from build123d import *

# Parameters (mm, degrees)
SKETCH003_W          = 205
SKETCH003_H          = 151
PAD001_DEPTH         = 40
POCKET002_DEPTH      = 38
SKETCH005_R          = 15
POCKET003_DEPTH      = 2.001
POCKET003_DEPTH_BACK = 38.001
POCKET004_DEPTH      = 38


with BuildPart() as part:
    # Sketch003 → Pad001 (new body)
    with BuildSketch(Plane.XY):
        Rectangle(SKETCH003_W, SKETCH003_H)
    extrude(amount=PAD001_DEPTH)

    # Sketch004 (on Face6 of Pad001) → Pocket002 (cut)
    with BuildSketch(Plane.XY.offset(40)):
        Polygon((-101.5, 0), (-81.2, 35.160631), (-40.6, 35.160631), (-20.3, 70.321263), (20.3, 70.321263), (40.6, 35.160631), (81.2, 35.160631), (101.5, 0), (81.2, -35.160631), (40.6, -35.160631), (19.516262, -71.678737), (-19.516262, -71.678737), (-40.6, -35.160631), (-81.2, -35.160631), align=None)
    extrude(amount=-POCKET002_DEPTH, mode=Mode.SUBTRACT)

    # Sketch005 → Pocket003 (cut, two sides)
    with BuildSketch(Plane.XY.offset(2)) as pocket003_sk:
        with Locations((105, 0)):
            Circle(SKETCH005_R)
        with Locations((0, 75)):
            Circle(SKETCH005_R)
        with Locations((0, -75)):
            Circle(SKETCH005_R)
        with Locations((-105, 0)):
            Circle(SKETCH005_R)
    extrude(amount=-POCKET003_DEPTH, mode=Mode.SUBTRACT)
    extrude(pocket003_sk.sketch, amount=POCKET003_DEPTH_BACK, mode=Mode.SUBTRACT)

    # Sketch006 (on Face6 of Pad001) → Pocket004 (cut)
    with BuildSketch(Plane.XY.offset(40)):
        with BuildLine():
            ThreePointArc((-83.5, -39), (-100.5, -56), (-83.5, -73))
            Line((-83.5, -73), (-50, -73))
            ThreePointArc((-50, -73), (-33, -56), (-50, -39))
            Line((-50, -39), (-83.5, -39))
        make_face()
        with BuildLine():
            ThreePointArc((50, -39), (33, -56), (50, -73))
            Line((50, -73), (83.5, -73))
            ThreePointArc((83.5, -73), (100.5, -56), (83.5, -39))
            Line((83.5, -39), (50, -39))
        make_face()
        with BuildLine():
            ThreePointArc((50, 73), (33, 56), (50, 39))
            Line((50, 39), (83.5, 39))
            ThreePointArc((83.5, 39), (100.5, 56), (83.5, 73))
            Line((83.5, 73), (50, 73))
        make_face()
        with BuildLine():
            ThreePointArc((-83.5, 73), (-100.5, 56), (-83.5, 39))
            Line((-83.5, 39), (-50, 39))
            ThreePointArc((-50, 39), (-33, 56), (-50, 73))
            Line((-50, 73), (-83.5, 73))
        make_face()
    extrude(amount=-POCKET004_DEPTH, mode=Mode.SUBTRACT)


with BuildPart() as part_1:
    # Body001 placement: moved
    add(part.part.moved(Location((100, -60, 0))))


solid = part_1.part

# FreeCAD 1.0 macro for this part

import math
import FreeCAD as App
import Part
import Sketcher

V = App.Vector
Q = App.Units.Quantity

doc = App.newDocument("Part")
params = doc.addObject("Spreadsheet::Sheet", "Params")
for row, (alias, value) in enumerate([
    ("sketch1_width", "205 mm"),
    ("sketch1_height", "151 mm"),
    ("pad1_length", "40 mm"),
    ("sketch2_width", "40.6 mm"),
    ("sketch2_length", "40.6 mm"),
    ("pocket1_length", "38 mm"),
    ("sketch3_diameter", "30 mm"),
    ("sketch4_radius", "17 mm"),
    ("sketch4_width", "33.5 mm"),
    ("pocket3_length", "38 mm"),
], start=1):
    params.set(f"A{row}", alias)
    params.set(f"B{row}", "=" + value)
    params.setAlias(f"B{row}", alias)

body = doc.addObject("PartDesign::Body", "Body")

# Sketch on XY plane
sketch1 = body.newObject("Sketcher::SketchObject", "Sketch")
sketch1.AttachmentSupport = (doc.getObject("XY_Plane"), [""])
sketch1.MapMode = "FlatFace"
sketch1.addGeometry([
    Part.LineSegment(V(-102, 76, 0), V(-102, -76, 0)),
    Part.LineSegment(V(-102, -76, 0), V(102, -76, 0)),
    Part.LineSegment(V(102, -76, 0), V(102, 76, 0)),
    Part.LineSegment(V(102, 76, 0), V(-102, 76, 0)),
], False)
sketch1.addConstraint([
    Sketcher.Constraint("Coincident", 0, 2, 1, 1),
    Sketcher.Constraint("Coincident", 1, 2, 2, 1),
    Sketcher.Constraint("Coincident", 2, 2, 3, 1),
    Sketcher.Constraint("Coincident", 3, 2, 0, 1),
    Sketcher.Constraint("Vertical", 0),
    Sketcher.Constraint("Horizontal", 1),
    Sketcher.Constraint("Vertical", 2),
    Sketcher.Constraint("Horizontal", 3),
    Sketcher.Constraint("Symmetric", 0, 2, 2, 2, -1, 1),
    Sketcher.Constraint("DistanceX", 1, 1, 1, 2, Q("205 mm")),
    Sketcher.Constraint("DistanceY", 0, 2, 0, 1, Q("151 mm")),
])
sketch1.setExpression("Constraints[9]", "Params.sketch1_width")
sketch1.setExpression("Constraints[10]", "Params.sketch1_height")
pad1 = body.newObject("PartDesign::Pad", "Pad")
pad1.Profile = sketch1
pad1.setExpression("Length", "Params.pad1_length")

# Sketch on XY plane
sketch2 = body.newObject("Sketcher::SketchObject", "Sketch001")
sketch2.AttachmentSupport = (doc.getObject("XY_Plane"), [""])
sketch2.MapMode = "FlatFace"
sketch2.AttachmentOffset = App.Placement(V(0, 0, 40), App.Rotation())
sketch2.addGeometry([
    Part.LineSegment(V(-81, 35, 0), V(-102, 0, 0)),  # 0
    Part.LineSegment(V(-102, 0, 0), V(-81, -35, 0)),  # 1
    Part.LineSegment(V(-81, -35, 0), V(-41, -35, 0)),  # 2
    Part.LineSegment(V(-41, -35, 0), V(-20, -72, 0)),  # 3
    Part.LineSegment(V(-20, -72, 0), V(20, -72, 0)),  # 4
    Part.LineSegment(V(20, -72, 0), V(41, -35, 0)),  # 5
    Part.LineSegment(V(41, -35, 0), V(81, -35, 0)),  # 6
    Part.LineSegment(V(81, -35, 0), V(102, 0, 0)),  # 7
    Part.LineSegment(V(102, 0, 0), V(81, 35, 0)),  # 8
    Part.LineSegment(V(81, 35, 0), V(41, 35, 0)),  # 9
    Part.LineSegment(V(41, 35, 0), V(20, 70, 0)),  # 10
    Part.LineSegment(V(20, 70, 0), V(-20, 70, 0)),  # 11
    Part.LineSegment(V(-20, 70, 0), V(-41, 35, 0)),  # 12
    Part.LineSegment(V(-41, 35, 0), V(-81, 35, 0)),  # 13
], False)
sketch2.addConstraint([
    Sketcher.Constraint("Coincident", 0, 2, 1, 1),
    Sketcher.Constraint("Coincident", 1, 2, 2, 1),
    Sketcher.Constraint("Coincident", 2, 2, 3, 1),
    Sketcher.Constraint("Coincident", 3, 2, 4, 1),
    Sketcher.Constraint("Coincident", 4, 2, 5, 1),
    Sketcher.Constraint("Coincident", 5, 2, 6, 1),
    Sketcher.Constraint("Coincident", 6, 2, 7, 1),
    Sketcher.Constraint("Coincident", 7, 2, 8, 1),
    Sketcher.Constraint("Coincident", 8, 2, 9, 1),
    Sketcher.Constraint("Coincident", 9, 2, 10, 1),
    Sketcher.Constraint("Coincident", 10, 2, 11, 1),
    Sketcher.Constraint("Coincident", 11, 2, 12, 1),
    Sketcher.Constraint("Coincident", 12, 2, 13, 1),
    Sketcher.Constraint("Coincident", 13, 2, 0, 1),
    Sketcher.Constraint("Horizontal", 2),
    Sketcher.Constraint("Horizontal", 4),
    Sketcher.Constraint("Horizontal", 6),
    Sketcher.Constraint("Horizontal", 9),
    Sketcher.Constraint("Horizontal", 11),
    Sketcher.Constraint("Horizontal", 13),
    Sketcher.Constraint("Symmetric", 0, 2, 7, 2, -1, 1),
    Sketcher.Constraint("Symmetric", 1, 2, 8, 2, -1, 1),
    Sketcher.Constraint("Symmetric", 5, 2, 12, 2, -1, 1),
    Sketcher.Constraint("Symmetric", 2, 2, 5, 2, -2),
    Sketcher.Constraint("PointOnObject", 0, 2, -1),
    Sketcher.Constraint("Parallel", 1, 3),
    Sketcher.Constraint("Parallel", 0, 5),
    Sketcher.Constraint("Parallel", 5, 7),
    Sketcher.Constraint("Parallel", 8, 10),
    Sketcher.Constraint("Parallel", 7, 12),
    Sketcher.Constraint("Vertical", 6, 2, 8, 2),
    Sketcher.Constraint("Vertical", 5, 2, 9, 2),
    Sketcher.Constraint("Equal", 9, 11),
    Sketcher.Constraint("Equal", 8, 10),
    Sketcher.Constraint("Angle", 0, Q("-120 deg")),
    Sketcher.Constraint("DistanceX", 2, 1, 2, 2, Q("40.6 mm")),
    Sketcher.Constraint("Distance", 0, Q("40.6 mm")),
    Sketcher.Constraint("DistanceX", 4, 1, 4, 2, Q("39.032524 mm")),
])
sketch2.setExpression("Constraints[35]", "Params.sketch2_width")
sketch2.setExpression("Constraints[36]", "Params.sketch2_length")
pocket1 = body.newObject("PartDesign::Pocket", "Pocket")
pocket1.Profile = sketch2
pocket1.setExpression("Length", "Params.pocket1_length")

# Sketch on XY plane
sketch3 = body.newObject("Sketcher::SketchObject", "Sketch002")
sketch3.AttachmentSupport = (doc.getObject("XY_Plane"), [""])
sketch3.MapMode = "FlatFace"
sketch3.AttachmentOffset = App.Placement(V(0, 0, 2), App.Rotation())
sketch3.addGeometry([
    Part.Circle(V(105, 0, 0), V(0, 0, 1), 15),
    Part.Circle(V(0, 75, 0), V(0, 0, 1), 15),
    Part.Circle(V(0, -75, 0), V(0, 0, 1), 15),
    Part.Circle(V(-105, 0, 0), V(0, 0, 1), 15),
], False)
sketch3.addConstraint([
    Sketcher.Constraint("Equal", 0, 1),
    Sketcher.Constraint("Equal", 1, 2),
    Sketcher.Constraint("Equal", 2, 3),
    Sketcher.Constraint("Symmetric", 1, 3, 2, 3, -1, 1),
    Sketcher.Constraint("Symmetric", 0, 3, 3, 3, -1, 1),
    Sketcher.Constraint("PointOnObject", 0, 3, -1),
    Sketcher.Constraint("PointOnObject", 1, 3, -2),
    Sketcher.Constraint("Diameter", 0, Q("30 mm")),
    Sketcher.Constraint("DistanceX", -1, 1, 0, 3, Q("105 mm")),
    Sketcher.Constraint("DistanceY", -1, 1, 1, 3, Q("75 mm")),
])
sketch3.setExpression("Constraints[7]", "Params.sketch3_diameter")
pocket2 = body.newObject("PartDesign::Pocket", "Pocket001")
pocket2.Profile = sketch3
pocket2.Type = "ThroughAll"
pocket2.Midplane = True

# Sketch on XY plane
sketch4 = body.newObject("Sketcher::SketchObject", "Sketch003")
sketch4.AttachmentSupport = (doc.getObject("XY_Plane"), [""])
sketch4.MapMode = "FlatFace"
sketch4.AttachmentOffset = App.Placement(V(0, 0, 40), App.Rotation())
sketch4.addGeometry([
    Part.ArcOfCircle(Part.Circle(V(-84, -56, 0), V(0, 0, 1), 17), math.radians(90), math.radians(270)),  # 0
    Part.LineSegment(V(-84, -73, 0), V(-50, -73, 0)),  # 1
    Part.ArcOfCircle(Part.Circle(V(-50, -56, 0), V(0, 0, 1), 17), math.radians(-90), math.radians(90)),  # 2
    Part.LineSegment(V(-50, -39, 0), V(-84, -39, 0)),  # 3
    Part.ArcOfCircle(Part.Circle(V(50, -56, 0), V(0, 0, 1), 17), math.radians(90), math.radians(270)),  # 4
    Part.LineSegment(V(50, -73, 0), V(84, -73, 0)),  # 5
    Part.ArcOfCircle(Part.Circle(V(84, -56, 0), V(0, 0, 1), 17), math.radians(-90), math.radians(90)),  # 6
    Part.LineSegment(V(84, -39, 0), V(50, -39, 0)),  # 7
    Part.ArcOfCircle(Part.Circle(V(50, 56, 0), V(0, 0, 1), 17), math.radians(90), math.radians(270)),  # 8
    Part.LineSegment(V(50, 39, 0), V(84, 39, 0)),  # 9
    Part.ArcOfCircle(Part.Circle(V(84, 56, 0), V(0, 0, 1), 17), math.radians(-90), math.radians(90)),  # 10
    Part.LineSegment(V(84, 73, 0), V(50, 73, 0)),  # 11
    Part.ArcOfCircle(Part.Circle(V(-84, 56, 0), V(0, 0, 1), 17), math.radians(90), math.radians(270)),  # 12
    Part.LineSegment(V(-84, 39, 0), V(-50, 39, 0)),  # 13
    Part.ArcOfCircle(Part.Circle(V(-50, 56, 0), V(0, 0, 1), 17), math.radians(-90), math.radians(90)),  # 14
    Part.LineSegment(V(-50, 73, 0), V(-84, 73, 0)),  # 15
], False)
sketch4.addConstraint([
    Sketcher.Constraint("Tangent", 0, 2, 1, 1),
    Sketcher.Constraint("Tangent", 1, 2, 2, 1),
    Sketcher.Constraint("Tangent", 2, 2, 3, 1),
    Sketcher.Constraint("Tangent", 3, 2, 0, 1),
    Sketcher.Constraint("Tangent", 4, 2, 5, 1),
    Sketcher.Constraint("Tangent", 5, 2, 6, 1),
    Sketcher.Constraint("Tangent", 6, 2, 7, 1),
    Sketcher.Constraint("Tangent", 7, 2, 4, 1),
    Sketcher.Constraint("Tangent", 8, 2, 9, 1),
    Sketcher.Constraint("Tangent", 9, 2, 10, 1),
    Sketcher.Constraint("Tangent", 10, 2, 11, 1),
    Sketcher.Constraint("Tangent", 11, 2, 8, 1),
    Sketcher.Constraint("Tangent", 12, 2, 13, 1),
    Sketcher.Constraint("Tangent", 13, 2, 14, 1),
    Sketcher.Constraint("Tangent", 14, 2, 15, 1),
    Sketcher.Constraint("Tangent", 15, 2, 12, 1),
    Sketcher.Constraint("Horizontal", 1),
    Sketcher.Constraint("Horizontal", 3),
    Sketcher.Constraint("Horizontal", 5),
    Sketcher.Constraint("Horizontal", 7),
    Sketcher.Constraint("Horizontal", 9),
    Sketcher.Constraint("Horizontal", 11),
    Sketcher.Constraint("Horizontal", 13),
    Sketcher.Constraint("Horizontal", 15),
    Sketcher.Constraint("Equal", 2, 4),
    Sketcher.Constraint("Equal", 6, 8),
    Sketcher.Constraint("Equal", 10, 12),
    Sketcher.Constraint("Symmetric", 2, 3, 8, 3, -1, 1),
    Sketcher.Constraint("Symmetric", 6, 3, 12, 3, -1, 1),
    Sketcher.Constraint("Symmetric", 2, 3, 4, 3, -2),
    Sketcher.Constraint("Vertical", 6, 3, 10, 3),
    Sketcher.Constraint("Vertical", 0, 3, 12, 3),
    Sketcher.Constraint("Vertical", 2, 3, 14, 3),
    Sketcher.Constraint("Radius", 0, Q("17 mm")),
    Sketcher.Constraint("DistanceX", 1, 1, 1, 2, Q("33.5 mm")),
    Sketcher.Constraint("DistanceY", 0, 3, -1, 1, Q("56 mm")),
    Sketcher.Constraint("DistanceX", 2, 3, -1, 1, Q("50 mm")),
])
sketch4.setExpression("Constraints[33]", "Params.sketch4_radius")
sketch4.setExpression("Constraints[34]", "Params.sketch4_width")
pocket3 = body.newObject("PartDesign::Pocket", "Pocket002")
pocket3.Profile = sketch4
pocket3.setExpression("Length", "Params.pocket3_length")
body2 = doc.addObject("PartDesign::Body", "Body001")
doc.recompute()

body.Placement = App.Placement(V(100, -60, 0), App.Rotation(V(0, 0, 1), 0))
boolean = body2.newObject("PartDesign::Boolean", "Boolean")
boolean.Type = "Fuse"
boolean.addObjects([body])

doc.recompute()
